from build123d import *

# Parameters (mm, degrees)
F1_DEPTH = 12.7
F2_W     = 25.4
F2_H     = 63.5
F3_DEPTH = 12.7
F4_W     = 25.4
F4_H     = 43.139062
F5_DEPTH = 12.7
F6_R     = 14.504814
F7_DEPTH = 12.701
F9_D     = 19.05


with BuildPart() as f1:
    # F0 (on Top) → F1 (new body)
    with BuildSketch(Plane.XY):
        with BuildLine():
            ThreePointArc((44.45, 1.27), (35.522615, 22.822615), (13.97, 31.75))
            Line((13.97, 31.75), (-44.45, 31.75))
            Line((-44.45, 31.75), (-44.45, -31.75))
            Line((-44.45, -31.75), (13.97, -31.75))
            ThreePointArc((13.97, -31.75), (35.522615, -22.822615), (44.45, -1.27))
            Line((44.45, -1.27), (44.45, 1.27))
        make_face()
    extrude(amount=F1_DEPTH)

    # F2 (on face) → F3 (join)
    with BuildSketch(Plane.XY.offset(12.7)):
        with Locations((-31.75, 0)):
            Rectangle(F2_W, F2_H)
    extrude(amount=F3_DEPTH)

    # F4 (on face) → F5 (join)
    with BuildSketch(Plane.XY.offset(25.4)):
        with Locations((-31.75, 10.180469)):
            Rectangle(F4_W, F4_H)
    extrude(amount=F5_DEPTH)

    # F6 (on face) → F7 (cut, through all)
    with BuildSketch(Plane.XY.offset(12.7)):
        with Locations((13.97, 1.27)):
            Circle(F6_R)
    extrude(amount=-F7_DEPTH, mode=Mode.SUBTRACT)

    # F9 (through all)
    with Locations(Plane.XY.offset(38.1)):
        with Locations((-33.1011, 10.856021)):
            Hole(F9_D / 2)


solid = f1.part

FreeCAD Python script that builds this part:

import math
import FreeCAD as App
import Part
import Sketcher
Q = App.Units.Quantity


def add_polygon(sketch, points):
    """Adds a closed chain of lines whose ends are joined by coincident constraints."""
    first, n = sketch.GeometryCount, len(points)
    for a, b in zip(points, points[1:] + points[:1]):
        sketch.addGeometry(Part.LineSegment(App.Vector(*a, 0), App.Vector(*b, 0)), False)
    for i in range(n):
        sketch.addConstraint(Sketcher.Constraint("Coincident", first + i, 2, first + (i + 1) % n, 1))

doc = App.newDocument("Part")
body = doc.addObject("PartDesign::Body", "Body")

sketch1 = doc.addObject("Sketcher::SketchObject", "Sketch")
body.addObject(sketch1)
sketch1.AttachmentSupport = (doc.XY_Plane, [""])
sketch1.MapMode = "FlatFace"
sketch1.addGeometry(Part.ArcOfCircle(Part.Circle(App.Vector(14, 1.3, 0), App.Vector(0, 0, 1), 30.5), math.radians(0), math.radians(90)), False)
sketch1.addGeometry(Part.LineSegment(App.Vector(14, 31.8, 0), App.Vector(-44.5, 31.8, 0)), False)
sketch1.addGeometry(Part.LineSegment(App.Vector(-44.5, 31.8, 0), App.Vector(-44.5, -31.8, 0)), False)
sketch1.addGeometry(Part.LineSegment(App.Vector(-44.5, -31.8, 0), App.Vector(14, -31.8, 0)), False)
sketch1.addGeometry(Part.ArcOfCircle(Part.Circle(App.Vector(14, -1.3, 0), App.Vector(0, 0, 1), 30.5), math.radians(-90), math.radians(0)), False)
sketch1.addGeometry(Part.LineSegment(App.Vector(44.5, -1.3, 0), App.Vector(44.5, 1.3, 0)), False)
sketch1.addConstraint(Sketcher.Constraint("Tangent", 0, 2, 1, 1))
sketch1.addConstraint(Sketcher.Constraint("Coincident", 1, 2, 2, 1))
sketch1.addConstraint(Sketcher.Constraint("Coincident", 2, 2, 3, 1))
sketch1.addConstraint(Sketcher.Constraint("Tangent", 3, 2, 4, 1))
sketch1.addConstraint(Sketcher.Constraint("Tangent", 4, 2, 5, 1))
sketch1.addConstraint(Sketcher.Constraint("Tangent", 5, 2, 0, 1))
sketch1.addConstraint(Sketcher.Constraint("Horizontal", 1))
sketch1.addConstraint(Sketcher.Constraint("Vertical", 2))
sketch1.addConstraint(Sketcher.Constraint("Horizontal", 3))
sketch1.addConstraint(Sketcher.Constraint("Vertical", 5))
sketch1.addConstraint(Sketcher.Constraint("Equal", 0, 4))
sketch1.addConstraint(Sketcher.Constraint("Radius", 0, Q("1.2 in")))
sketch1.addConstraint(Sketcher.Constraint("DistanceX", 1, 2, 1, 1, Q("2.3 in")))
sketch1.addConstraint(Sketcher.Constraint("DistanceY", 2, 2, 2, 1, Q("2.5 in")))
sketch1.addConstraint(Sketcher.Constraint("DistanceX", -1, 1, 0, 3, Q("0.55 in")))
sketch1.addConstraint(Sketcher.Constraint("DistanceY", -1, 1, 0, 3, Q("0.05 in")))
pad1 = doc.addObject("PartDesign::Pad", "Pad")
body.addObject(pad1)
pad1.Profile = sketch1
pad1.Length = Q("0.5 in")

sketch2 = doc.addObject("Sketcher::SketchObject", "Sketch001")
body.addObject(sketch2)
sketch2.AttachmentSupport = (doc.XY_Plane, [""])
sketch2.MapMode = "FlatFace"
sketch2.AttachmentOffset = App.Placement(App.Vector(0, 0, 0.5 * 25.4), App.Rotation())
add_polygon(sketch2, [(-44, 32), (-44, -32), (-19, -32), (-19, 32)])
sketch2.addConstraint(Sketcher.Constraint("Vertical", 0))
sketch2.addConstraint(Sketcher.Constraint("Horizontal", 1))
sketch2.addConstraint(Sketcher.Constraint("Vertical", 2))
sketch2.addConstraint(Sketcher.Constraint("Horizontal", 3))
sketch2.addConstraint(Sketcher.Constraint("DistanceX", 1, 1, 1, 2, Q("1 in")))
sketch2.addConstraint(Sketcher.Constraint("DistanceY", 0, 2, 0, 1, Q("2.5 in")))
sketch2.addConstraint(Sketcher.Constraint("DistanceX", 0, 2, -1, 1, Q("1.75 in")))
sketch2.addConstraint(Sketcher.Constraint("DistanceY", 0, 2, -1, 1, Q("1.25 in")))
pad2 = doc.addObject("PartDesign::Pad", "Pad001")
body.addObject(pad2)
pad2.Profile = sketch2
pad2.Length = Q("0.5 in")

sketch3 = doc.addObject("Sketcher::SketchObject", "Sketch002")
body.addObject(sketch3)
sketch3.AttachmentSupport = (doc.XY_Plane, [""])
sketch3.MapMode = "FlatFace"
sketch3.AttachmentOffset = App.Placement(App.Vector(0, 0, 1 * 25.4), App.Rotation())
add_polygon(sketch3, [(-44, 32), (-44, -11), (-19, -11), (-19, 32)])
sketch3.addConstraint(Sketcher.Constraint("Vertical", 0))
sketch3.addConstraint(Sketcher.Constraint("Horizontal", 1))
sketch3.addConstraint(Sketcher.Constraint("Vertical", 2))
sketch3.addConstraint(Sketcher.Constraint("Horizontal", 3))
sketch3.addConstraint(Sketcher.Constraint("DistanceX", 1, 1, 1, 2, Q("1 in")))
sketch3.addConstraint(Sketcher.Constraint("DistanceX", 0, 2, -1, 1, Q("1.75 in")))
sketch3.addConstraint(Sketcher.Constraint("DistanceY", -1, 1, 2, 2, Q("1.25 in")))
sketch3.addConstraint(Sketcher.Constraint("DistanceY", 0, 2, 0, 1, 43.139062))
pad3 = doc.addObject("PartDesign::Pad", "Pad002")
body.addObject(pad3)
pad3.Profile = sketch3
pad3.Length = Q("0.5 in")

sketch4 = doc.addObject("Sketcher::SketchObject", "Sketch003")
body.addObject(sketch4)
sketch4.AttachmentSupport = (doc.XY_Plane, [""])
sketch4.MapMode = "FlatFace"
sketch4.AttachmentOffset = App.Placement(App.Vector(0, 0, 0.5 * 25.4), App.Rotation())
sketch4.addGeometry(Part.Circle(App.Vector(14, 1, 0), App.Vector(0, 0, 1), 15), False)
sketch4.addConstraint(Sketcher.Constraint("DistanceX", -1, 1, 0, 3, Q("0.55 in")))
sketch4.addConstraint(Sketcher.Constraint("DistanceY", -1, 1, 0, 3, Q("0.05 in")))
sketch4.addConstraint(Sketcher.Constraint("Diameter", 0, 29.009628))
pocket1 = doc.addObject("PartDesign::Pocket", "Pocket")
body.addObject(pocket1)
pocket1.Profile = sketch4
pocket1.Type = "ThroughAll"

sketch5 = doc.addObject("Sketcher::SketchObject", "Sketch004")
body.addObject(sketch5)
sketch5.AttachmentSupport = (doc.XY_Plane, [""])
sketch5.MapMode = "FlatFace"
sketch5.AttachmentOffset = App.Placement(App.Vector(0, 0, 1.5 * 25.4), App.Rotation())
sketch5.addGeometry(Part.Circle(App.Vector(-33, 11, 0), App.Vector(0, 0, 1), 10), False)
sketch5.addConstraint(Sketcher.Constraint("Diameter", 0, Q("0.75 in")))
sketch5.addConstraint(Sketcher.Constraint("DistanceX", 0, 3, -1, 1, 33.1011))
sketch5.addConstraint(Sketcher.Constraint("DistanceY", -1, 1, 0, 3, 10.856021))
doc.recompute()
hole = doc.addObject("PartDesign::Hole", "Hole")
body.addObject(hole)
hole.Profile = sketch5
hole.ThreadType = "None"
hole.Diameter = Q("0.75 in")
hole.DepthType = "ThroughAll"

doc.recompute()
